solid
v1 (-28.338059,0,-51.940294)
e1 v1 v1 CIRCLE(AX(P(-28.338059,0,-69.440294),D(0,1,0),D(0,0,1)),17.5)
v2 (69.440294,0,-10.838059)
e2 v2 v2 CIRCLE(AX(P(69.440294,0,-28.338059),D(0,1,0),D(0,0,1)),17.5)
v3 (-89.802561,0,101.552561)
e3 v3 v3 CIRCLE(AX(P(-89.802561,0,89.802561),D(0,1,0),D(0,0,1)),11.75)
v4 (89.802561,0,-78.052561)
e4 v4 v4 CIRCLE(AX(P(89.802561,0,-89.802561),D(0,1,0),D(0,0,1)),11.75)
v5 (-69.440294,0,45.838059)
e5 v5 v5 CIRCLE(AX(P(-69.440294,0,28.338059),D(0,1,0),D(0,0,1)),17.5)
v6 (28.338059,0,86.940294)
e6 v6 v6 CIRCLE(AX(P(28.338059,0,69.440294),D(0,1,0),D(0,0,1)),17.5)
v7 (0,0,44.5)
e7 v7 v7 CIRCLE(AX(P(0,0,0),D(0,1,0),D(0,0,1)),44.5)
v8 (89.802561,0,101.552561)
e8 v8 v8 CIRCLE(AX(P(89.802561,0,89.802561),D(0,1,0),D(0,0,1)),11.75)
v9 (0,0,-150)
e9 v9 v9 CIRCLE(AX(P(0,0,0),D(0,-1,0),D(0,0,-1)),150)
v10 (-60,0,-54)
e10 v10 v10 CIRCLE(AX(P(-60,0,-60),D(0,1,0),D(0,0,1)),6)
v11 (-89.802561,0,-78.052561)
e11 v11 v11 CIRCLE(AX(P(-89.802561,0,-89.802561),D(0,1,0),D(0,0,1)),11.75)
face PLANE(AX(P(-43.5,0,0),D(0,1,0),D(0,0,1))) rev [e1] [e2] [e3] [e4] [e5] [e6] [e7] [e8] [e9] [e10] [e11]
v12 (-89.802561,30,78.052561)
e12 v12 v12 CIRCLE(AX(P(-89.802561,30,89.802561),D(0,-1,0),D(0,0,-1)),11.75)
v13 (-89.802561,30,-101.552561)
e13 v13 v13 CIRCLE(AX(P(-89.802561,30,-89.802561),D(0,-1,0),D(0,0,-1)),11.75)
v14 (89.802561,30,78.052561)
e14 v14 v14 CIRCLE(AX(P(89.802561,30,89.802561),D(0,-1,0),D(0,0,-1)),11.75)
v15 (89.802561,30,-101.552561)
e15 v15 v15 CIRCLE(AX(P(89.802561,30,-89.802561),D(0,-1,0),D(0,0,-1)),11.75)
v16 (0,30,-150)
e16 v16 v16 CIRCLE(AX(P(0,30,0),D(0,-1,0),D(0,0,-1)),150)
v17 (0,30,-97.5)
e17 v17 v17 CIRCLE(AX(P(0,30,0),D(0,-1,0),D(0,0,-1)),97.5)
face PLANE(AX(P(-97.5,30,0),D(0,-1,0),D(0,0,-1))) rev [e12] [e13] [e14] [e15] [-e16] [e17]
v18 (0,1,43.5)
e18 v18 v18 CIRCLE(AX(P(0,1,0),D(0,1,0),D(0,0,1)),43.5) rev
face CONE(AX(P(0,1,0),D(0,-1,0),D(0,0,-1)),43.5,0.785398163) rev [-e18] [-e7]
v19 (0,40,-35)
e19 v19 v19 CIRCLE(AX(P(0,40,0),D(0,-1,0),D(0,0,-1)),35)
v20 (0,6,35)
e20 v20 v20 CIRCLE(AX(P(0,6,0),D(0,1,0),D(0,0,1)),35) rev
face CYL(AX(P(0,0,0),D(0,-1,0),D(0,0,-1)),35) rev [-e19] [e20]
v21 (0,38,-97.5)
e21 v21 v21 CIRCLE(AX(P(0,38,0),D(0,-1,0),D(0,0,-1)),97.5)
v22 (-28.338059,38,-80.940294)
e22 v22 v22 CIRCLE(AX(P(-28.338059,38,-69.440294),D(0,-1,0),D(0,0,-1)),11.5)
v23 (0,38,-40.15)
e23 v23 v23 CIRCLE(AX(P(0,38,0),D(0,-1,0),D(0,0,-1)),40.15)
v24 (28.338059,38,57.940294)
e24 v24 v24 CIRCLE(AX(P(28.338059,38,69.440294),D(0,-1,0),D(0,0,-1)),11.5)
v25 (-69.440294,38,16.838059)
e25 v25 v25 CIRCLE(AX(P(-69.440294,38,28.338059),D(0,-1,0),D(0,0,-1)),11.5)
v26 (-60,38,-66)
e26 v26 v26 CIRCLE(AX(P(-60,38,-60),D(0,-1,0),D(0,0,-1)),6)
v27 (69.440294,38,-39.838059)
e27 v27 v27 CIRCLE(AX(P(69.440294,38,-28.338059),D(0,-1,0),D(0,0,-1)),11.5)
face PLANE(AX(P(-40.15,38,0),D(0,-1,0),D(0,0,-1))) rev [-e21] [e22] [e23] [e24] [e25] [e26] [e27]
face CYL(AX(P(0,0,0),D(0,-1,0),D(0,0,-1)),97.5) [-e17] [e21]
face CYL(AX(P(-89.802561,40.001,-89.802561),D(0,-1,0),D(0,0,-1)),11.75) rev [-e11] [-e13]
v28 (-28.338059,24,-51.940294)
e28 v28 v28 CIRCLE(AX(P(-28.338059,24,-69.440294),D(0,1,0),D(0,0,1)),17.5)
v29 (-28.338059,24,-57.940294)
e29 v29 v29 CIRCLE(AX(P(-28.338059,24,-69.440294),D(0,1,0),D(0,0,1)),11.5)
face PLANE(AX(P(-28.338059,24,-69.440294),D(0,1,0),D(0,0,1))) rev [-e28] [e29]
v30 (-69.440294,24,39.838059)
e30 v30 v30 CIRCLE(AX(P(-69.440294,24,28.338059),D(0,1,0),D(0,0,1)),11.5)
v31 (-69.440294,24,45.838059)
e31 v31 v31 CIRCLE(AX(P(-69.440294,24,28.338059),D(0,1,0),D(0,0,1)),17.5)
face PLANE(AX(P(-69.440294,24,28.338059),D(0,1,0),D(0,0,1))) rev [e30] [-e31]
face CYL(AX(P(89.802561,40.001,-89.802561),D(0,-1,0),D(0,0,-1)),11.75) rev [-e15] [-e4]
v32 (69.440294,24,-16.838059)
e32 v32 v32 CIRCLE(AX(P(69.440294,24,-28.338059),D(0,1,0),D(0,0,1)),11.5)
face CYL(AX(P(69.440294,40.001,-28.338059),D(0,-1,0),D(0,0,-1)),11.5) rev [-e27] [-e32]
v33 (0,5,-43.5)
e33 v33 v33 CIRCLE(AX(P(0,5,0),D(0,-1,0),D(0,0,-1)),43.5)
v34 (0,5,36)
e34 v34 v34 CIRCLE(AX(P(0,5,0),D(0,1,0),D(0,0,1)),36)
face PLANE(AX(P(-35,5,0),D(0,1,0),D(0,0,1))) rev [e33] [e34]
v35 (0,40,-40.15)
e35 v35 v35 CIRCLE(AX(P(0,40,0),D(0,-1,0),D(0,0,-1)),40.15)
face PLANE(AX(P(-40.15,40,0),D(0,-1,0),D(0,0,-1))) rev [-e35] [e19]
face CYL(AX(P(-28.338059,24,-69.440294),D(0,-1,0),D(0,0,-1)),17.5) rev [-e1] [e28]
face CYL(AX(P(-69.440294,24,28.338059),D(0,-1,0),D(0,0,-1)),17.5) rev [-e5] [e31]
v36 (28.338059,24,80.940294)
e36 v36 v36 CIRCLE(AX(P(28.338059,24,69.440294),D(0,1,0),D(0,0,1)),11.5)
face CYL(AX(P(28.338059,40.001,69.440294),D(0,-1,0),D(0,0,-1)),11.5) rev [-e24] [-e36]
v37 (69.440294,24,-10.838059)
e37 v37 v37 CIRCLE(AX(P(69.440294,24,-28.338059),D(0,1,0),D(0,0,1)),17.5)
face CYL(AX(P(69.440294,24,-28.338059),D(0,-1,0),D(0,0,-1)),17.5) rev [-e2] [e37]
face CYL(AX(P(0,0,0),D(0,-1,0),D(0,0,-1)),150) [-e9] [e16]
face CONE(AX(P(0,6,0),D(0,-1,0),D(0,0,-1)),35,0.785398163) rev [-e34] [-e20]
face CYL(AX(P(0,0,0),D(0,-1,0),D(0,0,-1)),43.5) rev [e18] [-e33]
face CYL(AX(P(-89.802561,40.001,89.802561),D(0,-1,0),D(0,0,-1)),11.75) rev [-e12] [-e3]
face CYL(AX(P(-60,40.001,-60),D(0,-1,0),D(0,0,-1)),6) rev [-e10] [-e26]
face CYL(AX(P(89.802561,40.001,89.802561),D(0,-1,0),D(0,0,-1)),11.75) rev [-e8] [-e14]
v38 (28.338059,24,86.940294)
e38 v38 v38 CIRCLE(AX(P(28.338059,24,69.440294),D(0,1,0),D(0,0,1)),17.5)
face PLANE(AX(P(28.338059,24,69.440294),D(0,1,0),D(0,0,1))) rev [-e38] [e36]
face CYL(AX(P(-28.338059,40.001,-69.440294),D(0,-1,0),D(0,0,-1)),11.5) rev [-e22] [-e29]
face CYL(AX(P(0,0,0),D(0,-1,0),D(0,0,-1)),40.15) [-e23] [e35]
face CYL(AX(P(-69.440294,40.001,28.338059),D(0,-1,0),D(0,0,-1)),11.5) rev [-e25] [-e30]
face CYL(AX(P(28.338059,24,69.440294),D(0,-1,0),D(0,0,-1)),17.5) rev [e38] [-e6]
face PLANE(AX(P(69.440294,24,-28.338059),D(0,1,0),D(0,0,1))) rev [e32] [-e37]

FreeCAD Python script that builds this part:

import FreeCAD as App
import Part
import Sketcher

V = App.Vector


def edges_at(feature, points):
    """Names of the edges that pass closest to the given points."""
    edges = feature.Shape.Edges
    near = lambda p: min(range(len(edges)), key=lambda i: edges[i].distToShape(Part.Vertex(*p))[0])
    return sorted({f"Edge{near(p) + 1}" for p in points})


def add_polygon(sketch, points):
    """Adds a closed chain of lines whose ends are joined by coincident constraints."""
    first, n = sketch.GeometryCount, len(points)
    for a, b in zip(points, points[1:] + points[:1]):
        sketch.addGeometry(Part.LineSegment(App.Vector(*a, 0), App.Vector(*b, 0)), False)
    for i in range(n):
        sketch.addConstraint(Sketcher.Constraint("Coincident", first + i, 2, first + (i + 1) % n, 1))

doc = App.newDocument("Part")
body = doc.addObject("PartDesign::Body", "Body")

sketch1 = body.newObject("Sketcher::SketchObject", "Sketch")
sketch1.AttachmentSupport = (doc.getObject("XY_Plane"), [""])
sketch1.MapMode = "FlatFace"
add_polygon(sketch1, [(-150, 30), (-150, 0), (-43.5, 0), (-43.5, 5), (-35, 5), (-35, 40), (-40.1, 40), (-40.1, 38), (-97.5, 38), (-97.5, 30)])
sketch1.addConstraint(Sketcher.Constraint("Vertical", 0))
sketch1.addConstraint(Sketcher.Constraint("Horizontal", 1))
sketch1.addConstraint(Sketcher.Constraint("Vertical", 2))
sketch1.addConstraint(Sketcher.Constraint("Horizontal", 3))
sketch1.addConstraint(Sketcher.Constraint("Vertical", 4))
sketch1.addConstraint(Sketcher.Constraint("Horizontal", 5))
sketch1.addConstraint(Sketcher.Constraint("Vertical", 6))
sketch1.addConstraint(Sketcher.Constraint("Horizontal", 7))
sketch1.addConstraint(Sketcher.Constraint("Vertical", 8))
sketch1.addConstraint(Sketcher.Constraint("Horizontal", 9))
sketch1.addConstraint(Sketcher.Constraint("PointOnObject", 0, 2, -1))
sketch1.addConstraint(Sketcher.Constraint("DistanceY", 0, 2, 0, 1, 30.0))
sketch1.addConstraint(Sketcher.Constraint("DistanceY", 2, 1, 2, 2, 5.0))
sketch1.addConstraint(Sketcher.Constraint("DistanceY", 4, 1, 4, 2, 35.0))
sketch1.addConstraint(Sketcher.Constraint("DistanceY", 6, 2, 6, 1, 2.0))
sketch1.addConstraint(Sketcher.Constraint("DistanceX", 1, 1, 1, 2, 106.5))
sketch1.addConstraint(Sketcher.Constraint("DistanceX", 3, 1, 3, 2, 8.5))
sketch1.addConstraint(Sketcher.Constraint("DistanceX", 9, 2, 9, 1, 52.5))
sketch1.addConstraint(Sketcher.Constraint("DistanceX", 0, 2, -1, 1, 150.0))
sketch1.addConstraint(Sketcher.Constraint("DistanceX", 5, 2, 5, 1, 5.15))
revolution = body.newObject("PartDesign::Revolution", "Revolution")
revolution.Profile = sketch1
revolution.ReferenceAxis = (sketch1, ["V_Axis"])
revolution.Angle = 360
doc.recompute()

chamfer = body.newObject("PartDesign::Chamfer", "Chamfer")
chamfer.Base = (revolution, edges_at(revolution, [(0, 0, 43.5), (0, 5, 35)]))
chamfer.Size = 1

sketch2 = body.newObject("Sketcher::SketchObject", "Sketch001")
sketch2.AttachmentSupport = (doc.getObject("XZ_Plane"), [""])
sketch2.MapMode = "FlatFace"
sketch2.addGeometry(Part.Circle(V(-60, -60, 0), V(0, 0, 1), 6), False)
sketch2.addConstraint(Sketcher.Constraint("Diameter", 0, 12.0))
sketch2.addConstraint(Sketcher.Constraint("DistanceX", 0, 3, -1, 1, 60.0))
sketch2.addConstraint(Sketcher.Constraint("DistanceY", 0, 3, -1, 1, 60.0))
pocket1 = body.newObject("PartDesign::Pocket", "Pocket")
pocket1.Profile = sketch2
pocket1.Type = "UpToFirst"

sketch3 = body.newObject("Sketcher::SketchObject", "Sketch002")
sketch3.AttachmentSupport = (doc.getObject("XZ_Plane"), [""])
sketch3.MapMode = "FlatFace"
sketch3.addGeometry(Part.Circle(V(-90, -90, 0), V(0, 0, 1), 12), False)
sketch3.addConstraint(Sketcher.Constraint("Diameter", 0, 23.5))
sketch3.addConstraint(Sketcher.Constraint("DistanceX", 0, 3, -1, 1, 89.802561))
sketch3.addConstraint(Sketcher.Constraint("DistanceY", 0, 3, -1, 1, 89.802561))
pocket2 = body.newObject("PartDesign::Pocket", "Pocket001")
pocket2.Profile = sketch3
pocket2.Type = "UpToFirst"

sketch4 = body.newObject("Sketcher::SketchObject", "Sketch003")
sketch4.AttachmentSupport = (doc.getObject("XZ_Plane"), [""])
sketch4.MapMode = "FlatFace"
sketch4.addGeometry(Part.Circle(V(90, -90, 0), V(0, 0, 1), 12), False)
sketch4.addConstraint(Sketcher.Constraint("Diameter", 0, 23.5))
sketch4.addConstraint(Sketcher.Constraint("DistanceX", -1, 1, 0, 3, 89.802561))
sketch4.addConstraint(Sketcher.Constraint("DistanceY", 0, 3, -1, 1, 89.802561))
pocket3 = body.newObject("PartDesign::Pocket", "Pocket002")
pocket3.Profile = sketch4
pocket3.Type = "UpToFirst"

sketch5 = body.newObject("Sketcher::SketchObject", "Sketch004")
sketch5.AttachmentSupport = (doc.getObject("XZ_Plane"), [""])
sketch5.MapMode = "FlatFace"
sketch5.addGeometry(Part.Circle(V(90, 90, 0), V(0, 0, 1), 12), False)
sketch5.addConstraint(Sketcher.Constraint("Diameter", 0, 23.5))
sketch5.addConstraint(Sketcher.Constraint("DistanceX", -1, 1, 0, 3, 89.802561))
sketch5.addConstraint(Sketcher.Constraint("DistanceY", -1, 1, 0, 3, 89.802561))
pocket4 = body.newObject("PartDesign::Pocket", "Pocket003")
pocket4.Profile = sketch5
pocket4.Type = "UpToFirst"

sketch6 = body.newObject("Sketcher::SketchObject", "Sketch005")
sketch6.AttachmentSupport = (doc.getObject("XZ_Plane"), [""])
sketch6.MapMode = "FlatFace"
sketch6.addGeometry(Part.Circle(V(-90, 90, 0), V(0, 0, 1), 12), False)
sketch6.addConstraint(Sketcher.Constraint("Diameter", 0, 23.5))
sketch6.addConstraint(Sketcher.Constraint("DistanceX", 0, 3, -1, 1, 89.802561))
sketch6.addConstraint(Sketcher.Constraint("DistanceY", -1, 1, 0, 3, 89.802561))
pocket5 = body.newObject("PartDesign::Pocket", "Pocket004")
pocket5.Profile = sketch6
pocket5.Type = "UpToFirst"

sketch7 = body.newObject("Sketcher::SketchObject", "Sketch006")
sketch7.AttachmentSupport = (doc.getObject("XZ_Plane"), [""])
sketch7.MapMode = "FlatFace"
sketch7.addGeometry(Part.Circle(V(-28, -69, 0), V(0, 0, 1), 12), False)
sketch7.addConstraint(Sketcher.Constraint("Diameter", 0, 23.0))
sketch7.addConstraint(Sketcher.Constraint("DistanceX", 0, 3, -1, 1, 28.338059))
sketch7.addConstraint(Sketcher.Constraint("DistanceY", 0, 3, -1, 1, 69.440294))
pocket6 = body.newObject("PartDesign::Pocket", "Pocket005")
pocket6.Profile = sketch7
pocket6.Type = "UpToFirst"

sketch8 = body.newObject("Sketcher::SketchObject", "Sketch007")
sketch8.AttachmentSupport = (doc.getObject("XZ_Plane"), [""])
sketch8.MapMode = "FlatFace"
sketch8.addGeometry(Part.Circle(V(69, -28, 0), V(0, 0, 1), 12), False)
sketch8.addConstraint(Sketcher.Constraint("Diameter", 0, 23.0))
sketch8.addConstraint(Sketcher.Constraint("DistanceY", 0, 3, -1, 1, 28.338059))
sketch8.addConstraint(Sketcher.Constraint("DistanceX", -1, 1, 0, 3, 69.440294))
pocket7 = body.newObject("PartDesign::Pocket", "Pocket006")
pocket7.Profile = sketch8
pocket7.Type = "UpToFirst"

sketch9 = body.newObject("Sketcher::SketchObject", "Sketch008")
sketch9.AttachmentSupport = (doc.getObject("XZ_Plane"), [""])
sketch9.MapMode = "FlatFace"
sketch9.addGeometry(Part.Circle(V(28, 69, 0), V(0, 0, 1), 12), False)
sketch9.addConstraint(Sketcher.Constraint("Diameter", 0, 23.0))
sketch9.addConstraint(Sketcher.Constraint("DistanceX", -1, 1, 0, 3, 28.338059))
sketch9.addConstraint(Sketcher.Constraint("DistanceY", -1, 1, 0, 3, 69.440294))
pocket8 = body.newObject("PartDesign::Pocket", "Pocket007")
pocket8.Profile = sketch9
pocket8.Type = "UpToFirst"

sketch10 = body.newObject("Sketcher::SketchObject", "Sketch009")
sketch10.AttachmentSupport = (doc.getObject("XZ_Plane"), [""])
sketch10.MapMode = "FlatFace"
sketch10.addGeometry(Part.Circle(V(-69, 28, 0), V(0, 0, 1), 12), False)
sketch10.addConstraint(Sketcher.Constraint("Diameter", 0, 23.0))
sketch10.addConstraint(Sketcher.Constraint("DistanceY", -1, 1, 0, 3, 28.338059))
sketch10.addConstraint(Sketcher.Constraint("DistanceX", 0, 3, -1, 1, 69.440294))
pocket9 = body.newObject("PartDesign::Pocket", "Pocket008")
pocket9.Profile = sketch10
pocket9.Type = "UpToFirst"

sketch11 = body.newObject("Sketcher::SketchObject", "Sketch010")
sketch11.AttachmentSupport = (doc.getObject("XZ_Plane"), [""])
sketch11.MapMode = "FlatFace"
sketch11.addGeometry(Part.Circle(V(-28, -69, 0), V(0, 0, 1), 18), False)
sketch11.addGeometry(Part.Circle(V(-69, 28, 0), V(0, 0, 1), 18), False)
sketch11.addGeometry(Part.Circle(V(69, -28, 0), V(0, 0, 1), 18), False)
sketch11.addGeometry(Part.Circle(V(28, 69, 0), V(0, 0, 1), 18), False)
sketch11.addConstraint(Sketcher.Constraint("Equal", 0, 1))
sketch11.addConstraint(Sketcher.Constraint("Equal", 1, 2))
sketch11.addConstraint(Sketcher.Constraint("Equal", 2, 3))
sketch11.addConstraint(Sketcher.Constraint("Symmetric", 1, 3, 2, 3, -1, 1))
sketch11.addConstraint(Sketcher.Constraint("Symmetric", 0, 3, 3, 3, -1, 1))
sketch11.addConstraint(Sketcher.Constraint("Diameter", 0, 35.0))
sketch11.addConstraint(Sketcher.Constraint("DistanceX", 0, 3, -1, 1, 28.338059))
sketch11.addConstraint(Sketcher.Constraint("DistanceY", -1, 1, 1, 3, 28.338059))
sketch11.addConstraint(Sketcher.Constraint("DistanceY", 0, 3, -1, 1, 69.440294))
sketch11.addConstraint(Sketcher.Constraint("DistanceX", 1, 3, -1, 1, 69.440294))
pocket10 = body.newObject("PartDesign::Pocket", "Pocket009")
pocket10.Profile = sketch11
pocket10.Length = 24

doc.recompute()
